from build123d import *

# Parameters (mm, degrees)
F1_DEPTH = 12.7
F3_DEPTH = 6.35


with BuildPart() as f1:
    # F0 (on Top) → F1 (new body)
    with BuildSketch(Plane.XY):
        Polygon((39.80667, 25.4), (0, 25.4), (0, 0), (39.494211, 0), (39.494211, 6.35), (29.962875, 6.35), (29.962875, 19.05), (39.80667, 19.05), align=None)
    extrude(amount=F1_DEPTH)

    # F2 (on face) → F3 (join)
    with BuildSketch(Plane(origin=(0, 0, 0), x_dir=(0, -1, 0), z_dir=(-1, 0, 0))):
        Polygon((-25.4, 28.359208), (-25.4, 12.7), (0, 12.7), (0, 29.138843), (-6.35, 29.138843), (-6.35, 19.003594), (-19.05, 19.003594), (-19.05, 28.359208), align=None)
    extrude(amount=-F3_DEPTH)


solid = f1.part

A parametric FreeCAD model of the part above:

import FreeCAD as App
import Part
import Sketcher
from FreeCAD import Vector
Q = App.Units.Quantity

doc = App.newDocument("Part")
params = doc.addObject("Spreadsheet::Sheet", "Params")
for row, (alias, value) in enumerate([
    ("sketch1_height", "1 in"),
    ("sketch1_height2", "0.5 in"),
    ("pad1_length", "0.5 in"),
    ("sketch2_width", "1 in"),
    ("sketch2_width2", "0.5 in"),
    ("pad2_length", "0.25 in"),
], start=1):
    params.set(f"A{row}", alias)
    params.set(f"B{row}", "=" + value)
    params.setAlias(f"B{row}", alias)

body = doc.addObject("PartDesign::Body", "Body")

# Sketch on XY plane
sketch1 = body.newObject("Sketcher::SketchObject", "Sketch")
sketch1.AttachmentSupport = (doc.getObject("XY_Plane"), [""])
sketch1.MapMode = "FlatFace"
sketch1.addGeometry([
    Part.LineSegment(Vector(39.80667, 25.4, 0), Vector(0, 25.4, 0)),  # 0
    Part.LineSegment(Vector(0, 25.4, 0), Vector(0, 0, 0)),  # 1
    Part.LineSegment(Vector(0, 0, 0), Vector(39.494211, 0, 0)),  # 2
    Part.LineSegment(Vector(39.494211, 0, 0), Vector(39.494211, 6.35, 0)),  # 3
    Part.LineSegment(Vector(39.494211, 6.35, 0), Vector(29.962875, 6.35, 0)),  # 4
    Part.LineSegment(Vector(29.962875, 6.35, 0), Vector(29.962875, 19.05, 0)),  # 5
    Part.LineSegment(Vector(29.962875, 19.05, 0), Vector(39.80667, 19.05, 0)),  # 6
    Part.LineSegment(Vector(39.80667, 19.05, 0), Vector(39.80667, 25.4, 0)),  # 7
], False)
sketch1.addConstraint([
    Sketcher.Constraint("Coincident", 0, 2, 1, 1),
    Sketcher.Constraint("Coincident", 1, 2, 2, 1),
    Sketcher.Constraint("Coincident", 2, 2, 3, 1),
    Sketcher.Constraint("Coincident", 3, 2, 4, 1),
    Sketcher.Constraint("Coincident", 4, 2, 5, 1),
    Sketcher.Constraint("Coincident", 5, 2, 6, 1),
    Sketcher.Constraint("Coincident", 6, 2, 7, 1),
    Sketcher.Constraint("Coincident", 7, 2, 0, 1),
    Sketcher.Constraint("Horizontal", 0),
    Sketcher.Constraint("Vertical", 1),
    Sketcher.Constraint("Horizontal", 2),
    Sketcher.Constraint("Vertical", 3),
    Sketcher.Constraint("Horizontal", 4),
    Sketcher.Constraint("Vertical", 5),
    Sketcher.Constraint("Horizontal", 6),
    Sketcher.Constraint("Vertical", 7),
    Sketcher.Constraint("Coincident", 1, 2, -1, 1),
    Sketcher.Constraint("Equal", 3, 7),
    Sketcher.Constraint("DistanceY", 1, 2, 1, 1, Q("1 in")),
    Sketcher.Constraint("DistanceY", 5, 1, 5, 2, Q("0.5 in")),
    Sketcher.Constraint("DistanceX", 0, 2, 0, 1, Q("39.80667 mm")),
    Sketcher.Constraint("DistanceX", 2, 1, 2, 2, Q("39.494211 mm")),
    Sketcher.Constraint("DistanceX", 4, 2, 4, 1, Q("9.531336 mm")),
])
sketch1.setExpression("Constraints[18]", "Params.sketch1_height")
sketch1.setExpression("Constraints[19]", "Params.sketch1_height2")
pad1 = body.newObject("PartDesign::Pad", "Pad")
pad1.Profile = sketch1
pad1.setExpression("Length", "Params.pad1_length")

# Sketch on YZ plane
sketch2 = body.newObject("Sketcher::SketchObject", "Sketch001")
sketch2.AttachmentSupport = (doc.getObject("YZ_Plane"), [""])
sketch2.MapMode = "FlatFace"
sketch2.addGeometry([
    Part.LineSegment(Vector(25.4, 28.359208, 0), Vector(25.4, 12.7, 0)),  # 0
    Part.LineSegment(Vector(25.4, 12.7, 0), Vector(0, 12.7, 0)),  # 1
    Part.LineSegment(Vector(0, 12.7, 0), Vector(0, 29.138843, 0)),  # 2
    Part.LineSegment(Vector(0, 29.138843, 0), Vector(6.35, 29.138843, 0)),  # 3
    Part.LineSegment(Vector(6.35, 29.138843, 0), Vector(6.35, 19.003594, 0)),  # 4
    Part.LineSegment(Vector(6.35, 19.003594, 0), Vector(19.05, 19.003594, 0)),  # 5
    Part.LineSegment(Vector(19.05, 19.003594, 0), Vector(19.05, 28.359208, 0)),  # 6
    Part.LineSegment(Vector(19.05, 28.359208, 0), Vector(25.4, 28.359208, 0)),  # 7
], False)
sketch2.addConstraint([
    Sketcher.Constraint("Coincident", 0, 2, 1, 1),
    Sketcher.Constraint("Coincident", 1, 2, 2, 1),
    Sketcher.Constraint("Coincident", 2, 2, 3, 1),
    Sketcher.Constraint("Coincident", 3, 2, 4, 1),
    Sketcher.Constraint("Coincident", 4, 2, 5, 1),
    Sketcher.Constraint("Coincident", 5, 2, 6, 1),
    Sketcher.Constraint("Coincident", 6, 2, 7, 1),
    Sketcher.Constraint("Coincident", 7, 2, 0, 1),
    Sketcher.Constraint("Vertical", 0),
    Sketcher.Constraint("Horizontal", 1),
    Sketcher.Constraint("Vertical", 2),
    Sketcher.Constraint("Horizontal", 3),
    Sketcher.Constraint("Vertical", 4),
    Sketcher.Constraint("Horizontal", 5),
    Sketcher.Constraint("Vertical", 6),
    Sketcher.Constraint("Horizontal", 7),
    Sketcher.Constraint("PointOnObject", 1, 2, -2),
    Sketcher.Constraint("Equal", 3, 7),
    Sketcher.Constraint("DistanceX", 1, 2, 1, 1, Q("1 in")),
    Sketcher.Constraint("DistanceX", 5, 1, 5, 2, Q("0.5 in")),
    Sketcher.Constraint("DistanceY", -1, 1, 0, 2, Q("0.5 in")),
    Sketcher.Constraint("DistanceY", 4, 2, 4, 1, Q("10.135249 mm")),
    Sketcher.Constraint("DistanceY", 0, 2, 0, 1, Q("15.659208 mm")),
    Sketcher.Constraint("DistanceY", 2, 1, 2, 2, Q("16.438843 mm")),
])
sketch2.setExpression("Constraints[18]", "Params.sketch2_width")
sketch2.setExpression("Constraints[19]", "Params.sketch2_width2")
pad2 = body.newObject("PartDesign::Pad", "Pad001")
pad2.Profile = sketch2
pad2.setExpression("Length", "Params.pad2_length")

doc.recompute()
